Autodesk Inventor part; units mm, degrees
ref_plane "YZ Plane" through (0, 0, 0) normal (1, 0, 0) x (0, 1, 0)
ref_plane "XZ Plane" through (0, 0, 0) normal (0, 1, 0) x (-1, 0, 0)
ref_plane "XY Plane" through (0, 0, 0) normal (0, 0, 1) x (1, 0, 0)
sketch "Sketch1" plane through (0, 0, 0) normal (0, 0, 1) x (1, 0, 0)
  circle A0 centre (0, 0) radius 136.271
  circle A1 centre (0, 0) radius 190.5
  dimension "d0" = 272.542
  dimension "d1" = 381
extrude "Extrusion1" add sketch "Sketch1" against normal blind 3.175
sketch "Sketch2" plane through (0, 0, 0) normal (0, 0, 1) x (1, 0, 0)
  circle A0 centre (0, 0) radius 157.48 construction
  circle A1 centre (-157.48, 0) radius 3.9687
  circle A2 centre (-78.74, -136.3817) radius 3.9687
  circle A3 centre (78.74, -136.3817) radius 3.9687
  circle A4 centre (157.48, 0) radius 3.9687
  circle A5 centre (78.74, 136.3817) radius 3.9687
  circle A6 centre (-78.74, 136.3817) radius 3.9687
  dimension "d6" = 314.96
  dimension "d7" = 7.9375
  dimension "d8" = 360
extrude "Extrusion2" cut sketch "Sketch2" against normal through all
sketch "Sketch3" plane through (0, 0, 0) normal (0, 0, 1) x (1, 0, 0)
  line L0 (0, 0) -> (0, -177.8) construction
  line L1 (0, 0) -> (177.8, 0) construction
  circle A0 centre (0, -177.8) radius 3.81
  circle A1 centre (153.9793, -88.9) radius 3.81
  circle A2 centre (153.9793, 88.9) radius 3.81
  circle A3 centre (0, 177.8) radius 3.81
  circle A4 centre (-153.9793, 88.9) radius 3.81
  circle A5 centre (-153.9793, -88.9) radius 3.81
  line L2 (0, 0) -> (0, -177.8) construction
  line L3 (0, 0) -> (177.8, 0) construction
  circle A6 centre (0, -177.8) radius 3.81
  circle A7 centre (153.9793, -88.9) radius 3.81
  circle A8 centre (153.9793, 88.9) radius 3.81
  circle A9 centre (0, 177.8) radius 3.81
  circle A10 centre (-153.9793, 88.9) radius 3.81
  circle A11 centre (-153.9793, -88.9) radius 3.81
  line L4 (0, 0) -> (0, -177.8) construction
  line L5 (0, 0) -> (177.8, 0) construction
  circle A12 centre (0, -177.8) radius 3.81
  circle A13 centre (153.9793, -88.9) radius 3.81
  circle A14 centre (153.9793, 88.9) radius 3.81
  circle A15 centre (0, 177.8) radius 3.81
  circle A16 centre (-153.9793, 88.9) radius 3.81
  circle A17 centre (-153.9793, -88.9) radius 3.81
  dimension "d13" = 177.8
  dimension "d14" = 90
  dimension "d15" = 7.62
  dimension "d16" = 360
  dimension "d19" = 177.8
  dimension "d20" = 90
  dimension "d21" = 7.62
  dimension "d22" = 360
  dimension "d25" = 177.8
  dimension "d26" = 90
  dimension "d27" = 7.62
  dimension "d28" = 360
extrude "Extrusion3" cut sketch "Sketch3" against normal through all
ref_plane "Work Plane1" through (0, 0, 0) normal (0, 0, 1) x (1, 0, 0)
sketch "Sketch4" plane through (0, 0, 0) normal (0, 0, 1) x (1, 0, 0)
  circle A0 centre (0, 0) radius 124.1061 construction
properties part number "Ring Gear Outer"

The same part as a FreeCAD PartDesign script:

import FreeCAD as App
import Part
import Sketcher
Q = App.Units.Quantity

doc = App.newDocument("Part")
body = doc.addObject("PartDesign::Body", "Body")

sketch1 = body.newObject("Sketcher::SketchObject", "Sketch")
sketch1.AttachmentSupport = (doc.getObject("XY_Plane"), [""])
sketch1.MapMode = "FlatFace"
sketch1.addGeometry([
    Part.Circle(App.Vector(0, 0, 0), App.Vector(0, 0, 1), 190),
    Part.Circle(App.Vector(0, 0, 0), App.Vector(0, 0, 1), 136),
], False)
sketch1.addConstraint([
    Sketcher.Constraint("Coincident", 0, 3, -1, 1),
    Sketcher.Constraint("Coincident", 1, 3, -1, 1),
    Sketcher.Constraint("Diameter", 0, Q("15 in")),
    Sketcher.Constraint("Diameter", 1, Q("10.73 in")),
])
pad1 = body.newObject("PartDesign::Pad", "Pad")
pad1.Profile = sketch1
pad1.Length = Q("0.125 in")
pad1.Reversed = True

sketch2 = body.newObject("Sketcher::SketchObject", "Sketch001")
sketch2.AttachmentSupport = (doc.getObject("XY_Plane"), [""])
sketch2.MapMode = "FlatFace"
sketch2.addGeometry([
    Part.Circle(App.Vector(-157.5, 0, 0), App.Vector(0, 0, 1), 4),
    Part.Circle(App.Vector(-78.7, -136.4, 0), App.Vector(0, 0, 1), 4),
    Part.Circle(App.Vector(78.7, -136.4, 0), App.Vector(0, 0, 1), 4),
    Part.Circle(App.Vector(157.5, 0, 0), App.Vector(0, 0, 1), 4),
    Part.Circle(App.Vector(78.7, 136.4, 0), App.Vector(0, 0, 1), 4),
    Part.Circle(App.Vector(-78.7, 136.4, 0), App.Vector(0, 0, 1), 4),
], False)
sketch2.addConstraint([
    Sketcher.Constraint("Equal", 0, 1),
    Sketcher.Constraint("Equal", 1, 2),
    Sketcher.Constraint("Equal", 2, 3),
    Sketcher.Constraint("Equal", 3, 4),
    Sketcher.Constraint("Equal", 4, 5),
    Sketcher.Constraint("Symmetric", 0, 3, 3, 3, -1, 1),
    Sketcher.Constraint("Symmetric", 1, 3, 4, 3, -1, 1),
    Sketcher.Constraint("Symmetric", 2, 3, 5, 3, -1, 1),
    Sketcher.Constraint("Symmetric", 1, 3, 2, 3, -2),
    Sketcher.Constraint("PointOnObject", 0, 3, -1),
    Sketcher.Constraint("Diameter", 0, Q("0.3125 in")),
    Sketcher.Constraint("DistanceX", 0, 3, 3, 3, Q("12.4 in")),
    Sketcher.Constraint("DistanceX", 1, 3, -1, 1, Q("3.1 in")),
    Sketcher.Constraint("DistanceY", 1, 3, -1, 1, Q("136.3817 mm")),
])
pocket1 = body.newObject("PartDesign::Pocket", "Pocket")
pocket1.Profile = sketch2
pocket1.Type = "ThroughAll"

sketch3 = body.newObject("Sketcher::SketchObject", "Sketch002")
sketch3.AttachmentSupport = (doc.getObject("XY_Plane"), [""])
sketch3.MapMode = "FlatFace"
sketch3.addGeometry([
    Part.Circle(App.Vector(0, -177.8, 0), App.Vector(0, 0, 1), 3.8),
    Part.Circle(App.Vector(154, -88.9, 0), App.Vector(0, 0, 1), 3.8),
    Part.Circle(App.Vector(154, 88.9, 0), App.Vector(0, 0, 1), 3.8),
    Part.Circle(App.Vector(0, 177.8, 0), App.Vector(0, 0, 1), 3.8),
    Part.Circle(App.Vector(-154, 88.9, 0), App.Vector(0, 0, 1), 3.8),
    Part.Circle(App.Vector(-154, -88.9, 0), App.Vector(0, 0, 1), 3.8),
], False)
sketch3.addConstraint([
    Sketcher.Constraint("Equal", 0, 1),
    Sketcher.Constraint("Equal", 1, 2),
    Sketcher.Constraint("Equal", 2, 3),
    Sketcher.Constraint("Equal", 3, 4),
    Sketcher.Constraint("Equal", 4, 5),
    Sketcher.Constraint("Symmetric", 0, 3, 3, 3, -1, 1),
    Sketcher.Constraint("Symmetric", 1, 3, 4, 3, -1, 1),
    Sketcher.Constraint("Symmetric", 2, 3, 5, 3, -1, 1),
    Sketcher.Constraint("Symmetric", 2, 3, 4, 3, -2),
    Sketcher.Constraint("PointOnObject", 0, 3, -2),
    Sketcher.Constraint("Diameter", 0, Q("0.3 in")),
    Sketcher.Constraint("DistanceY", 0, 3, -1, 1, Q("7 in")),
    Sketcher.Constraint("DistanceY", 1, 3, 2, 3, Q("7 in")),
    Sketcher.Constraint("DistanceX", -1, 1, 1, 3, Q("153.9793 mm")),
])
pocket2 = body.newObject("PartDesign::Pocket", "Pocket001")
pocket2.Profile = sketch3
pocket2.Type = "ThroughAll"

doc.recompute()
